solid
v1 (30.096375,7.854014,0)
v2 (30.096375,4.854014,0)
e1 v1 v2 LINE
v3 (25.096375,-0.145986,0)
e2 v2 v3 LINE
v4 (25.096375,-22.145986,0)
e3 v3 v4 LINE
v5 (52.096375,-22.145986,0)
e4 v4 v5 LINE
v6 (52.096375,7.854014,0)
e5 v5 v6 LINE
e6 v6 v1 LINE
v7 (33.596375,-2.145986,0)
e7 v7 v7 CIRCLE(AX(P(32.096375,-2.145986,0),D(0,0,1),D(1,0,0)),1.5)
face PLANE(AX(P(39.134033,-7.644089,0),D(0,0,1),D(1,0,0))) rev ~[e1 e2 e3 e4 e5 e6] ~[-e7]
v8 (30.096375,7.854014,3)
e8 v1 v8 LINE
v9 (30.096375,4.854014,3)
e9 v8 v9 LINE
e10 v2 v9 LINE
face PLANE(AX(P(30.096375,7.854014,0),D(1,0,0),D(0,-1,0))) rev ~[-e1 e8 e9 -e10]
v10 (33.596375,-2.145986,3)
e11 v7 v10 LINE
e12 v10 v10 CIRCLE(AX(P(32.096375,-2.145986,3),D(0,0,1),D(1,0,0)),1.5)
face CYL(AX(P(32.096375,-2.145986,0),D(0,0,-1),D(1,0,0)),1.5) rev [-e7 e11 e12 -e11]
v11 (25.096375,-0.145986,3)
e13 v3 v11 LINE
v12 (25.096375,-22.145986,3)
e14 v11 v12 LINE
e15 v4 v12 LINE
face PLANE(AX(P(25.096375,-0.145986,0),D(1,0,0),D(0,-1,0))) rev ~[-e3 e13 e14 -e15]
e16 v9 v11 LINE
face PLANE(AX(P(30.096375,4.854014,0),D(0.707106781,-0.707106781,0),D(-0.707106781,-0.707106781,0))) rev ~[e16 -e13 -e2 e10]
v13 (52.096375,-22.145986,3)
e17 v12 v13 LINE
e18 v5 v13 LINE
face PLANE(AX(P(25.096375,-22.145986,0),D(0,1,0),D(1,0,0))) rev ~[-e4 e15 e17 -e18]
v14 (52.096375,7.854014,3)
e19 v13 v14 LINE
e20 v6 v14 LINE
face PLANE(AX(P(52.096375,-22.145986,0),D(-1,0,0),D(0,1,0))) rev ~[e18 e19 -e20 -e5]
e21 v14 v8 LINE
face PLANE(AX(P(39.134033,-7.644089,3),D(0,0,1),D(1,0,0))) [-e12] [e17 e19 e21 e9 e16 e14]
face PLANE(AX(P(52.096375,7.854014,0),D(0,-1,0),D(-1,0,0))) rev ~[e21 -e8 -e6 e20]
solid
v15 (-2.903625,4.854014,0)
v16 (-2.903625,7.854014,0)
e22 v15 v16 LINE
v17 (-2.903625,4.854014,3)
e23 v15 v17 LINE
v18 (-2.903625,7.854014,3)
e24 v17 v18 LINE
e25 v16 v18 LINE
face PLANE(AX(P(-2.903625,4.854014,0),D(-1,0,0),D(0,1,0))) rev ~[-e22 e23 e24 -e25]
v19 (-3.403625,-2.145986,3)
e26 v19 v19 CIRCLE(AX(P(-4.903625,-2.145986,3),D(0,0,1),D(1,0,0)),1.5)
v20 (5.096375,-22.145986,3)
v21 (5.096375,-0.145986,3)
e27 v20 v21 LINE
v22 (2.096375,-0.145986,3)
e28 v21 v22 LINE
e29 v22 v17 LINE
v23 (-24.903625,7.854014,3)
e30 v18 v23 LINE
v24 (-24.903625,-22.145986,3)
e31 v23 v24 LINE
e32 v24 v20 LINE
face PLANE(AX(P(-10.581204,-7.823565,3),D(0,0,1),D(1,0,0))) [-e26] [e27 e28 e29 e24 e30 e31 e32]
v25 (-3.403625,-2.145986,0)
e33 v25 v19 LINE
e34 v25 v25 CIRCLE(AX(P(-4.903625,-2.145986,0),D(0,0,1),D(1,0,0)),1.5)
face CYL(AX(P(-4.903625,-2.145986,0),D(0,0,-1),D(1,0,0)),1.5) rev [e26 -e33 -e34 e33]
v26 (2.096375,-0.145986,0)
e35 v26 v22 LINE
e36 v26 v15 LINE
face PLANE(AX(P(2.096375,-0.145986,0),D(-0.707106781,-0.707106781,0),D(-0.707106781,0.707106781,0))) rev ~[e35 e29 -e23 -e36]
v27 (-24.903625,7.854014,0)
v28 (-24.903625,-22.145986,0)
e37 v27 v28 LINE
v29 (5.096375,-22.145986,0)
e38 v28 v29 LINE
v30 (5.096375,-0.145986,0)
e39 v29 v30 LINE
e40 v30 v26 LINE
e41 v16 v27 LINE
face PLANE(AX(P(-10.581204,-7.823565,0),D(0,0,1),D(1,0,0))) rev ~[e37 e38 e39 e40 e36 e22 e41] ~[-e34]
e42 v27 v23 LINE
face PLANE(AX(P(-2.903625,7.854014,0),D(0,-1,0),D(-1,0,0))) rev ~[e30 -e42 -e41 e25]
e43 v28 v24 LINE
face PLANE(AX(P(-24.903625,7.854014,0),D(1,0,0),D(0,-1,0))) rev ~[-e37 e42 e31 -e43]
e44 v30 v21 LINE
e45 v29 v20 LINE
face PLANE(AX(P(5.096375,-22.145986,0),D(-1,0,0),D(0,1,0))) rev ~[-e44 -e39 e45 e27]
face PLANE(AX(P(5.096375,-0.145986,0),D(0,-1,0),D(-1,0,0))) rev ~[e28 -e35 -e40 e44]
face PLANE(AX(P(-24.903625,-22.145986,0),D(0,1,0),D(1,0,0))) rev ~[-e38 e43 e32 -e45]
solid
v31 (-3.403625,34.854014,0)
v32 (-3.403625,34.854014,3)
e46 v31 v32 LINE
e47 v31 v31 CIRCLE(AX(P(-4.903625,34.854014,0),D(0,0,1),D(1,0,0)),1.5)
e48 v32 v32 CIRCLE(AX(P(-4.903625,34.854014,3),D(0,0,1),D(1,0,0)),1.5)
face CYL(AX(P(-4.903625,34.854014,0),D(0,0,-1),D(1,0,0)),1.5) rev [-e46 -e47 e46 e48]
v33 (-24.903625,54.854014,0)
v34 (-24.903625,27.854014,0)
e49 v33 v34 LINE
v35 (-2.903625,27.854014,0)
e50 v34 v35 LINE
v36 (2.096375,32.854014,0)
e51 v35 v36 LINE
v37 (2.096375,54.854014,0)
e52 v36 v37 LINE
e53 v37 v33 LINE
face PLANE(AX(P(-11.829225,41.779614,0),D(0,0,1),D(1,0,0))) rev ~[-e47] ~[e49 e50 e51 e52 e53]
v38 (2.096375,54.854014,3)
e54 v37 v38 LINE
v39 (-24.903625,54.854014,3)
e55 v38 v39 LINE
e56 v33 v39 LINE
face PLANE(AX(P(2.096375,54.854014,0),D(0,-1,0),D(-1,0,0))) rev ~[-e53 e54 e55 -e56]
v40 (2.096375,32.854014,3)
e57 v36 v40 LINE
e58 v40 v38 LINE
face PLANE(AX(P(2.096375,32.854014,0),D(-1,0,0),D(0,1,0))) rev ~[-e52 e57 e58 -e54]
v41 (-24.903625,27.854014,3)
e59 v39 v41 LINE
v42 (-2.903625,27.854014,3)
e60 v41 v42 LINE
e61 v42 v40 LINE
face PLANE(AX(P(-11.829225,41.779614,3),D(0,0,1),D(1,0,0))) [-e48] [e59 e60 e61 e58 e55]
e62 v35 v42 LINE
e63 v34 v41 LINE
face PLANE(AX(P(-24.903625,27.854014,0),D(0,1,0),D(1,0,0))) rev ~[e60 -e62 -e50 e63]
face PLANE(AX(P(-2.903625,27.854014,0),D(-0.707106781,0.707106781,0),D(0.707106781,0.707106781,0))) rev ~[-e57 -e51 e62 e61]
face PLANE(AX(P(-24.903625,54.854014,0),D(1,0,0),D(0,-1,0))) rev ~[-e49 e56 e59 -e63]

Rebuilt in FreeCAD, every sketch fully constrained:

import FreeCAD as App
import Part
import Sketcher

V = App.Vector

doc = App.newDocument("Part")
params = doc.addObject("Spreadsheet::Sheet", "Params")
for row, (alias, value) in enumerate([
    ("sketch1_diameter", "3 mm"),
    ("sketch1_width", "22 mm"),
    ("sketch1_width2", "30 mm"),
    ("sketch1_width3", "3 mm"),
    ("pad1_length", "3 mm"),
], start=1):
    params.set(f"A{row}", alias)
    params.set(f"B{row}", "=" + value)
    params.setAlias(f"B{row}", alias)

body = doc.addObject("PartDesign::Body", "Body")
body.AllowCompound = True

# Sketch on XY plane
sketch1 = doc.addObject("Sketcher::SketchObject", "Sketch")
body.addObject(sketch1)
sketch1.AttachmentSupport = (doc.XY_Plane, [""])
sketch1.MapMode = "FlatFace"
sketch1.addGeometry([
    Part.LineSegment(V(-2.9, 7.9, 0), V(-24.9, 7.9, 0)),  # 0
    Part.LineSegment(V(-24.9, 7.9, 0), V(-24.9, -22.1, 0)),  # 1
    Part.LineSegment(V(-24.9, -22.1, 0), V(5.1, -22.1, 0)),  # 2
    Part.LineSegment(V(5.1, -22.1, 0), V(5.1, -0.1, 0)),  # 3
    Part.LineSegment(V(5.1, -0.1, 0), V(2.1, -0.1, 0)),  # 4
    Part.LineSegment(V(2.1, -0.1, 0), V(-2.9, 4.9, 0)),  # 5
    Part.LineSegment(V(-2.9, 4.9, 0), V(-2.9, 7.9, 0)),  # 6
    Part.Circle(V(-4.9, -2.1, 0), V(0, 0, 1), 1.5),  # 7
    Part.LineSegment(V(52.1, 7.9, 0), V(30.1, 7.9, 0)),  # 8
    Part.LineSegment(V(30.1, 7.9, 0), V(30.1, 4.9, 0)),  # 9
    Part.LineSegment(V(30.1, 4.9, 0), V(25.1, -0.1, 0)),  # 10
    Part.LineSegment(V(25.1, -0.1, 0), V(25.1, -22.1, 0)),  # 11
    Part.LineSegment(V(25.1, -22.1, 0), V(52.1, -22.1, 0)),  # 12
    Part.LineSegment(V(52.1, -22.1, 0), V(52.1, 7.9, 0)),  # 13
    Part.Circle(V(32.1, -2.1, 0), V(0, 0, 1), 1.5),  # 14
    Part.LineSegment(V(2.1, 54.9, 0), V(-24.9, 54.9, 0)),  # 15
    Part.LineSegment(V(-24.9, 54.9, 0), V(-24.9, 27.9, 0)),  # 16
    Part.LineSegment(V(-24.9, 27.9, 0), V(-2.9, 27.9, 0)),  # 17
    Part.LineSegment(V(-2.9, 27.9, 0), V(2.1, 32.9, 0)),  # 18
    Part.LineSegment(V(2.1, 32.9, 0), V(2.1, 54.9, 0)),  # 19
    Part.Circle(V(-4.9, 34.9, 0), V(0, 0, 1), 1.5),  # 20
], False)
sketch1.addConstraint([
    Sketcher.Constraint("Coincident", 0, 2, 1, 1),
    Sketcher.Constraint("Coincident", 1, 2, 2, 1),
    Sketcher.Constraint("Coincident", 2, 2, 3, 1),
    Sketcher.Constraint("Coincident", 3, 2, 4, 1),
    Sketcher.Constraint("Coincident", 4, 2, 5, 1),
    Sketcher.Constraint("Coincident", 5, 2, 6, 1),
    Sketcher.Constraint("Coincident", 6, 2, 0, 1),
    Sketcher.Constraint("Coincident", 8, 2, 9, 1),
    Sketcher.Constraint("Coincident", 9, 2, 10, 1),
    Sketcher.Constraint("Coincident", 10, 2, 11, 1),
    Sketcher.Constraint("Coincident", 11, 2, 12, 1),
    Sketcher.Constraint("Coincident", 12, 2, 13, 1),
    Sketcher.Constraint("Coincident", 13, 2, 8, 1),
    Sketcher.Constraint("Coincident", 15, 2, 16, 1),
    Sketcher.Constraint("Coincident", 16, 2, 17, 1),
    Sketcher.Constraint("Coincident", 17, 2, 18, 1),
    Sketcher.Constraint("Coincident", 18, 2, 19, 1),
    Sketcher.Constraint("Coincident", 19, 2, 15, 1),
    Sketcher.Constraint("Horizontal", 0),
    Sketcher.Constraint("Vertical", 1),
    Sketcher.Constraint("Horizontal", 2),
    Sketcher.Constraint("Vertical", 3),
    Sketcher.Constraint("Horizontal", 4),
    Sketcher.Constraint("Vertical", 6),
    Sketcher.Constraint("Horizontal", 8),
    Sketcher.Constraint("Vertical", 9),
    Sketcher.Constraint("Vertical", 11),
    Sketcher.Constraint("Horizontal", 12),
    Sketcher.Constraint("Vertical", 13),
    Sketcher.Constraint("Horizontal", 15),
    Sketcher.Constraint("Vertical", 16),
    Sketcher.Constraint("Horizontal", 17),
    Sketcher.Constraint("Vertical", 19),
    Sketcher.Constraint("Equal", 7, 14),
    Sketcher.Constraint("Equal", 14, 20),
    Sketcher.Constraint("Perpendicular", 5, 10),
    Sketcher.Constraint("Parallel", 10, 18),
    Sketcher.Constraint("Horizontal", 7, 3, 14, 3),
    Sketcher.Constraint("Horizontal", 6, 2, 8, 2),
    Sketcher.Constraint("Horizontal", 5, 2, 9, 2),
    Sketcher.Constraint("Horizontal", 4, 2, 10, 2),
    Sketcher.Constraint("Horizontal", 2, 2, 11, 2),
    Sketcher.Constraint("Vertical", 7, 3, 20, 3),
    Sketcher.Constraint("Vertical", 1, 2, 15, 2),
    Sketcher.Constraint("Vertical", 6, 2, 17, 2),
    Sketcher.Constraint("Vertical", 4, 2, 18, 2),
    Sketcher.Constraint("Equal", 0, 8),
    Sketcher.Constraint("Equal", 12, 15),
    Sketcher.Constraint("Equal", 2, 1),
    Sketcher.Constraint("Equal", 17, 3),
    Sketcher.Constraint("Equal", 15, 16),
    Sketcher.Constraint("Diameter", 7, 3.0),
    Sketcher.Constraint("DistanceX", 0, 2, 0, 1, 22.0),
    Sketcher.Constraint("DistanceX", 2, 1, 2, 2, 30.0),
    Sketcher.Constraint("DistanceX", 4, 2, 4, 1, 3.0),
    Sketcher.Constraint("DistanceX", 7, 3, 14, 3, 37.0),
    Sketcher.Constraint("DistanceY", 7, 3, 20, 3, 37.0),
    Sketcher.Constraint("DistanceX", 0, 2, 7, 3, 20.0),
    Sketcher.Constraint("DistanceY", 7, 3, 0, 2, 10.0),
    Sketcher.Constraint("DistanceX", 8, 2, 14, 3, 2.0),
    Sketcher.Constraint("DistanceY", 20, 3, 15, 2, 20.0),
    Sketcher.Constraint("DistanceX", 7, 3, -1, 1, 4.903625),
    Sketcher.Constraint("DistanceY", 7, 3, -1, 1, 2.145986),
])
sketch1.setExpression("Constraints[51]", "Params.sketch1_diameter")
sketch1.setExpression("Constraints[52]", "Params.sketch1_width")
sketch1.setExpression("Constraints[53]", "Params.sketch1_width2")
sketch1.setExpression("Constraints[54]", "Params.sketch1_width3")
pad1 = doc.addObject("PartDesign::Pad", "Pad")
body.addObject(pad1)
pad1.Profile = sketch1
pad1.setExpression("Length", "Params.pad1_length")

doc.recompute()
